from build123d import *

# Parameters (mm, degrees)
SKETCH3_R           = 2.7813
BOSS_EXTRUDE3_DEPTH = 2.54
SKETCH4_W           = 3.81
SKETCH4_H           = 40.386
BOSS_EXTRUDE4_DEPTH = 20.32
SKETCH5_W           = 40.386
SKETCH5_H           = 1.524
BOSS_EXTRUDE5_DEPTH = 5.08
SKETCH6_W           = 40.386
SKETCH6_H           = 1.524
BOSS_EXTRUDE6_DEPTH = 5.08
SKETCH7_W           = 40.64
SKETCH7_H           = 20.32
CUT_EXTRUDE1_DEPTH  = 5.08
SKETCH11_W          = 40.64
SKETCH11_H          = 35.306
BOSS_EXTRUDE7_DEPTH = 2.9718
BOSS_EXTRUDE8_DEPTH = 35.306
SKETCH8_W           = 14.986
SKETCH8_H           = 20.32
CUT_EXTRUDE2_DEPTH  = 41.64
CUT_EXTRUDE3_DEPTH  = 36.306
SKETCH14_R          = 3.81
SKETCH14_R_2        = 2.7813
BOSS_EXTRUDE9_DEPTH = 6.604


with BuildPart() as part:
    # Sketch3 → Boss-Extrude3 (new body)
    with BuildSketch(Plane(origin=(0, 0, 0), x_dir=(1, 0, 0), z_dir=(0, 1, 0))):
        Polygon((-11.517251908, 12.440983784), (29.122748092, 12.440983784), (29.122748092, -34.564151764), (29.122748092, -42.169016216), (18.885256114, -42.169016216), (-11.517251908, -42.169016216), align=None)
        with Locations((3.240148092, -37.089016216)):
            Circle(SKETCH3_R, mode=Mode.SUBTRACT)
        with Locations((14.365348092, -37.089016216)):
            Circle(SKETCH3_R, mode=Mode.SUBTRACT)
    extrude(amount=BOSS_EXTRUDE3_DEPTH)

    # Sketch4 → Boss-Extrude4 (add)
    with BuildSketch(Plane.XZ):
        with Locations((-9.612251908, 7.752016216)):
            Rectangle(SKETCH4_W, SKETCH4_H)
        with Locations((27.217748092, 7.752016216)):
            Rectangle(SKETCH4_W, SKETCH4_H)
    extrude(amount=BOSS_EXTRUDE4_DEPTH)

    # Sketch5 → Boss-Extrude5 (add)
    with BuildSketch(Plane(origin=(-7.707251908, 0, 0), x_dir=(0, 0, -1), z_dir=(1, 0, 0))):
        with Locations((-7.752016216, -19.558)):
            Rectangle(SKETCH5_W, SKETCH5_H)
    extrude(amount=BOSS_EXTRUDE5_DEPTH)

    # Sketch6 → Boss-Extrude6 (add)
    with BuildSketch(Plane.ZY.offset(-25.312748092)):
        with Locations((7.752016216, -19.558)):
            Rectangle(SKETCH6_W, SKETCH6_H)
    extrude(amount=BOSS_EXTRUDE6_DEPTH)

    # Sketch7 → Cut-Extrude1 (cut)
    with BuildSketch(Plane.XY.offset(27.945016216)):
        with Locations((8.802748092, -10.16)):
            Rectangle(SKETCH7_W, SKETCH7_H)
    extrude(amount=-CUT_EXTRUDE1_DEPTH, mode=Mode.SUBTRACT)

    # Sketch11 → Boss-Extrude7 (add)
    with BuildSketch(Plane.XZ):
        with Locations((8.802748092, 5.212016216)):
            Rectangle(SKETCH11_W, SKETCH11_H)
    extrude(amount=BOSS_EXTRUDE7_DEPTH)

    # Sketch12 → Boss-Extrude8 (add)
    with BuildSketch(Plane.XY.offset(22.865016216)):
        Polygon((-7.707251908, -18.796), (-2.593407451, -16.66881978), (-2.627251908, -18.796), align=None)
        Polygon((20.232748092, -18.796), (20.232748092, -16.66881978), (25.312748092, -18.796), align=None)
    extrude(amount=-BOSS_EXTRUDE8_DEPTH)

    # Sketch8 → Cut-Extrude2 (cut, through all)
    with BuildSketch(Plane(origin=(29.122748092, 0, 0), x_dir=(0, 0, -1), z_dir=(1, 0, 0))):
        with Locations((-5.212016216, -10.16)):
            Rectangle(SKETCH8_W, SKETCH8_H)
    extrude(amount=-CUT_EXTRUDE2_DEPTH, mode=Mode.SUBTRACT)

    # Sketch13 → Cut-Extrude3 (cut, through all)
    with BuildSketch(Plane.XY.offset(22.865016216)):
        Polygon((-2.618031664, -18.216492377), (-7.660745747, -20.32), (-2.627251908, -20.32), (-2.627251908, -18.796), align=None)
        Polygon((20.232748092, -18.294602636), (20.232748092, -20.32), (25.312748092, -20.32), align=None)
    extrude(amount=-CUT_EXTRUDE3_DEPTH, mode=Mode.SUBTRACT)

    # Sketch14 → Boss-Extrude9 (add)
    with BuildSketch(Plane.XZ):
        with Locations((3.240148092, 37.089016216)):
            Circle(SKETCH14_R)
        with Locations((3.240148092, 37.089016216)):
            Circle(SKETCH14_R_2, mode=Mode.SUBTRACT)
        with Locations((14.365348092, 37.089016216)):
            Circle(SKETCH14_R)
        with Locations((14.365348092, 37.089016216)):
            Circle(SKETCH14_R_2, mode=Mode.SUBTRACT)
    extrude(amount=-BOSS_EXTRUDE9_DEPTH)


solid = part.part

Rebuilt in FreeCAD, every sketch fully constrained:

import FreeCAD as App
import Part
import Sketcher
Q = App.Units.Quantity

doc = App.newDocument("Part")
params = doc.addObject("Spreadsheet::Sheet", "Params")
for row, (alias, value) in enumerate([
    ("sketch1_diameter", "0.219 in"),
    ("sketch1_width", "1.6 in"),
    ("sketch1_height", "2.15 in"),
    ("pad1_length", "0.1 in"),
    ("sketch2_width", "0.15 in"),
    ("sketch2_height", "1.59 in"),
    ("pad2_length", "0.8 in"),
    ("sketch3_width", "0.06 in"),
    ("sketch3_height", "1.59 in"),
    ("pad3_length", "0.2 in"),
    ("sketch4_width", "0.06 in"),
    ("sketch4_height", "1.59 in"),
    ("pad4_length", "0.2 in"),
    ("sketch5_width", "1.6 in"),
    ("sketch5_height", "0.8 in"),
    ("pocket1_length", "0.2 in"),
    ("sketch6_width", "1.6 in"),
    ("sketch6_height", "1.39 in"),
    ("pad5_length", "0.117 in"),
    ("sketch7_width", "0.2 in"),
    ("pad6_length", "1.39 in"),
    ("sketch8_width", "0.8 in"),
    ("sketch8_height", "0.59 in"),
    ("sketch9_width", "0.2 in"),
    ("sketch9_height", "0.06 in"),
    ("sketch10_diameter", "0.3 in"),
    ("sketch10_diameter2", "0.219 in"),
    ("pad7_length", "0.26 in"),
], start=1):
    params.set(f"A{row}", alias)
    params.set(f"B{row}", "=" + value)
    params.setAlias(f"B{row}", alias)

body = doc.addObject("PartDesign::Body", "Body")

sketch1 = body.newObject("Sketcher::SketchObject", "Sketch")
sketch1.AttachmentSupport = (doc.getObject("XZ_Plane"), [""])
sketch1.MapMode = "FlatFace"
sketch1.addGeometry([
    Part.LineSegment(App.Vector(29.1, -12.4, 0), App.Vector(-11.5, -12.4, 0)),
    Part.LineSegment(App.Vector(-11.5, -12.4, 0), App.Vector(-11.5, 42.2, 0)),
    Part.LineSegment(App.Vector(-11.5, 42.2, 0), App.Vector(29.1, 42.2, 0)),
    Part.LineSegment(App.Vector(29.1, 42.2, 0), App.Vector(29.1, -12.4, 0)),
    Part.Circle(App.Vector(14.4, 37.1, 0), App.Vector(0, 0, 1), 2.8),
    Part.Circle(App.Vector(3.2, 37.1, 0), App.Vector(0, 0, 1), 2.8),
], False)
sketch1.addConstraint([
    Sketcher.Constraint("Coincident", 0, 2, 1, 1),
    Sketcher.Constraint("Coincident", 1, 2, 2, 1),
    Sketcher.Constraint("Coincident", 2, 2, 3, 1),
    Sketcher.Constraint("Coincident", 3, 2, 0, 1),
    Sketcher.Constraint("Horizontal", 0),
    Sketcher.Constraint("Vertical", 1),
    Sketcher.Constraint("Horizontal", 2),
    Sketcher.Constraint("Vertical", 3),
    Sketcher.Constraint("Equal", 4, 5),
    Sketcher.Constraint("Horizontal", 4, 3, 5, 3),
    Sketcher.Constraint("Diameter", 4, Q("0.219 in")),
    Sketcher.Constraint("DistanceX", 0, 2, 0, 1, Q("1.6 in")),
    Sketcher.Constraint("DistanceY", 1, 1, 1, 2, Q("2.15 in")),
    Sketcher.Constraint("DistanceY", 5, 3, 1, 2, Q("0.2 in")),
    Sketcher.Constraint("DistanceX", 5, 3, 4, 3, Q("0.438 in")),
    Sketcher.Constraint("DistanceX", 0, 2, 5, 3, Q("0.581 in")),
    Sketcher.Constraint("DistanceX", -1, 1, 4, 3, Q("14.365348 mm")),
    Sketcher.Constraint("DistanceY", -1, 1, 4, 3, Q("37.089016 mm")),
])
sketch1.setExpression("Constraints[10]", "Params.sketch1_diameter")
sketch1.setExpression("Constraints[11]", "Params.sketch1_width")
sketch1.setExpression("Constraints[12]", "Params.sketch1_height")
pad1 = body.newObject("PartDesign::Pad", "Pad")
pad1.Profile = sketch1
pad1.setExpression("Length", "Params.pad1_length")
pad1.Reversed = True

sketch2 = body.newObject("Sketcher::SketchObject", "Sketch001")
sketch2.AttachmentSupport = (doc.getObject("XZ_Plane"), [""])
sketch2.MapMode = "FlatFace"
sketch2.addGeometry([
    Part.LineSegment(App.Vector(-11.5, 27.9, 0), App.Vector(-11.5, -12.4, 0)),
    Part.LineSegment(App.Vector(-11.5, -12.4, 0), App.Vector(-7.7, -12.4, 0)),
    Part.LineSegment(App.Vector(-7.7, -12.4, 0), App.Vector(-7.7, 27.9, 0)),
    Part.LineSegment(App.Vector(-7.7, 27.9, 0), App.Vector(-11.5, 27.9, 0)),
    Part.LineSegment(App.Vector(25.3, 27.9, 0), App.Vector(25.3, -12.4, 0)),
    Part.LineSegment(App.Vector(25.3, -12.4, 0), App.Vector(29.1, -12.4, 0)),
    Part.LineSegment(App.Vector(29.1, -12.4, 0), App.Vector(29.1, 27.9, 0)),
    Part.LineSegment(App.Vector(29.1, 27.9, 0), App.Vector(25.3, 27.9, 0)),
], False)
sketch2.addConstraint([
    Sketcher.Constraint("Coincident", 0, 2, 1, 1),
    Sketcher.Constraint("Coincident", 1, 2, 2, 1),
    Sketcher.Constraint("Coincident", 2, 2, 3, 1),
    Sketcher.Constraint("Coincident", 3, 2, 0, 1),
    Sketcher.Constraint("Coincident", 4, 2, 5, 1),
    Sketcher.Constraint("Coincident", 5, 2, 6, 1),
    Sketcher.Constraint("Coincident", 6, 2, 7, 1),
    Sketcher.Constraint("Coincident", 7, 2, 4, 1),
    Sketcher.Constraint("Vertical", 0),
    Sketcher.Constraint("Horizontal", 1),
    Sketcher.Constraint("Vertical", 2),
    Sketcher.Constraint("Horizontal", 3),
    Sketcher.Constraint("Vertical", 4),
    Sketcher.Constraint("Horizontal", 5),
    Sketcher.Constraint("Vertical", 6),
    Sketcher.Constraint("Horizontal", 7),
    Sketcher.Constraint("Horizontal", 1, 2, 4, 2),
    Sketcher.Constraint("Horizontal", 3, 2, 6, 2),
    Sketcher.Constraint("Equal", 3, 5),
    Sketcher.Constraint("DistanceX", 1, 1, 1, 2, Q("0.15 in")),
    Sketcher.Constraint("DistanceY", 0, 2, 0, 1, Q("1.59 in")),
    Sketcher.Constraint("DistanceX", 1, 2, 4, 2, Q("1.3 in")),
    Sketcher.Constraint("DistanceX", 0, 2, -1, 1, Q("11.517252 mm")),
    Sketcher.Constraint("DistanceY", 0, 2, -1, 1, Q("12.440984 mm")),
])
sketch2.setExpression("Constraints[19]", "Params.sketch2_width")
sketch2.setExpression("Constraints[20]", "Params.sketch2_height")
pad2 = body.newObject("PartDesign::Pad", "Pad001")
pad2.Profile = sketch2
pad2.setExpression("Length", "Params.pad2_length")

sketch3 = body.newObject("Sketcher::SketchObject", "Sketch002")
sketch3.AttachmentSupport = (doc.getObject("YZ_Plane"), [""])
sketch3.MapMode = "FlatFace"
sketch3.AttachmentOffset = App.Placement(App.Vector(0, 0, -7.707252), App.Rotation())
sketch3.addGeometry([
    Part.LineSegment(App.Vector(-18.8, 27.9, 0), App.Vector(-20.3, 27.9, 0)),
    Part.LineSegment(App.Vector(-20.3, 27.9, 0), App.Vector(-20.3, -12.4, 0)),
    Part.LineSegment(App.Vector(-20.3, -12.4, 0), App.Vector(-18.8, -12.4, 0)),
    Part.LineSegment(App.Vector(-18.8, -12.4, 0), App.Vector(-18.8, 27.9, 0)),
], False)
sketch3.addConstraint([
    Sketcher.Constraint("Coincident", 0, 2, 1, 1),
    Sketcher.Constraint("Coincident", 1, 2, 2, 1),
    Sketcher.Constraint("Coincident", 2, 2, 3, 1),
    Sketcher.Constraint("Coincident", 3, 2, 0, 1),
    Sketcher.Constraint("Horizontal", 0),
    Sketcher.Constraint("Vertical", 1),
    Sketcher.Constraint("Horizontal", 2),
    Sketcher.Constraint("Vertical", 3),
    Sketcher.Constraint("DistanceX", 0, 2, 0, 1, Q("0.06 in")),
    Sketcher.Constraint("DistanceY", 1, 2, 1, 1, Q("1.59 in")),
    Sketcher.Constraint("DistanceX", 0, 2, -1, 1, Q("0.8 in")),
    Sketcher.Constraint("DistanceY", -1, 1, 0, 2, Q("27.945016 mm")),
])
sketch3.setExpression("Constraints[8]", "Params.sketch3_width")
sketch3.setExpression("Constraints[9]", "Params.sketch3_height")
pad3 = body.newObject("PartDesign::Pad", "Pad002")
pad3.Profile = sketch3
pad3.setExpression("Length", "Params.pad3_length")

sketch4 = body.newObject("Sketcher::SketchObject", "Sketch003")
sketch4.AttachmentSupport = (doc.getObject("YZ_Plane"), [""])
sketch4.MapMode = "FlatFace"
sketch4.AttachmentOffset = App.Placement(App.Vector(0, 0, 25.312748), App.Rotation())
sketch4.addGeometry([
    Part.LineSegment(App.Vector(-18.8, -12.4, 0), App.Vector(-20.3, -12.4, 0)),
    Part.LineSegment(App.Vector(-20.3, -12.4, 0), App.Vector(-20.3, 27.9, 0)),
    Part.LineSegment(App.Vector(-20.3, 27.9, 0), App.Vector(-18.8, 27.9, 0)),
    Part.LineSegment(App.Vector(-18.8, 27.9, 0), App.Vector(-18.8, -12.4, 0)),
], False)
sketch4.addConstraint([
    Sketcher.Constraint("Coincident", 0, 2, 1, 1),
    Sketcher.Constraint("Coincident", 1, 2, 2, 1),
    Sketcher.Constraint("Coincident", 2, 2, 3, 1),
    Sketcher.Constraint("Coincident", 3, 2, 0, 1),
    Sketcher.Constraint("Horizontal", 0),
    Sketcher.Constraint("Vertical", 1),
    Sketcher.Constraint("Horizontal", 2),
    Sketcher.Constraint("Vertical", 3),
    Sketcher.Constraint("DistanceX", 0, 2, 0, 1, Q("0.06 in")),
    Sketcher.Constraint("DistanceY", 1, 1, 1, 2, Q("1.59 in")),
    Sketcher.Constraint("DistanceX", 0, 2, -1, 1, Q("0.8 in")),
    Sketcher.Constraint("DistanceY", 0, 2, -1, 1, Q("12.440984 mm")),
])
sketch4.setExpression("Constraints[8]", "Params.sketch4_width")
sketch4.setExpression("Constraints[9]", "Params.sketch4_height")
pad4 = body.newObject("PartDesign::Pad", "Pad003")
pad4.Profile = sketch4
pad4.setExpression("Length", "Params.pad4_length")
pad4.Reversed = True

sketch5 = body.newObject("Sketcher::SketchObject", "Sketch004")
sketch5.AttachmentSupport = (doc.getObject("XY_Plane"), [""])
sketch5.MapMode = "FlatFace"
sketch5.AttachmentOffset = App.Placement(App.Vector(0, 0, 27.945016), App.Rotation())
sketch5.addGeometry([
    Part.LineSegment(App.Vector(-12, 0, 0), App.Vector(-12, -20, 0)),
    Part.LineSegment(App.Vector(-12, -20, 0), App.Vector(29, -20, 0)),
    Part.LineSegment(App.Vector(29, -20, 0), App.Vector(29, 0, 0)),
    Part.LineSegment(App.Vector(29, 0, 0), App.Vector(-12, 0, 0)),
], False)
sketch5.addConstraint([
    Sketcher.Constraint("Coincident", 0, 2, 1, 1),
    Sketcher.Constraint("Coincident", 1, 2, 2, 1),
    Sketcher.Constraint("Coincident", 2, 2, 3, 1),
    Sketcher.Constraint("Coincident", 3, 2, 0, 1),
    Sketcher.Constraint("Vertical", 0),
    Sketcher.Constraint("Horizontal", 1),
    Sketcher.Constraint("Vertical", 2),
    Sketcher.Constraint("Horizontal", 3),
    Sketcher.Constraint("PointOnObject", 2, 2, -1),
    Sketcher.Constraint("DistanceX", 1, 1, 1, 2, Q("1.6 in")),
    Sketcher.Constraint("DistanceY", 0, 2, 0, 1, Q("0.8 in")),
    Sketcher.Constraint("DistanceX", 0, 2, -1, 1, Q("11.517252 mm")),
])
sketch5.setExpression("Constraints[9]", "Params.sketch5_width")
sketch5.setExpression("Constraints[10]", "Params.sketch5_height")
pocket1 = body.newObject("PartDesign::Pocket", "Pocket")
pocket1.Profile = sketch5
pocket1.setExpression("Length", "Params.pocket1_length")

sketch6 = body.newObject("Sketcher::SketchObject", "Sketch005")
sketch6.AttachmentSupport = (doc.getObject("XZ_Plane"), [""])
sketch6.MapMode = "FlatFace"
sketch6.addGeometry([
    Part.LineSegment(App.Vector(-12, 23, 0), App.Vector(-12, -12, 0)),
    Part.LineSegment(App.Vector(-12, -12, 0), App.Vector(29, -12, 0)),
    Part.LineSegment(App.Vector(29, -12, 0), App.Vector(29, 23, 0)),
    Part.LineSegment(App.Vector(29, 23, 0), App.Vector(-12, 23, 0)),
], False)
sketch6.addConstraint([
    Sketcher.Constraint("Coincident", 0, 2, 1, 1),
    Sketcher.Constraint("Coincident", 1, 2, 2, 1),
    Sketcher.Constraint("Coincident", 2, 2, 3, 1),
    Sketcher.Constraint("Coincident", 3, 2, 0, 1),
    Sketcher.Constraint("Vertical", 0),
    Sketcher.Constraint("Horizontal", 1),
    Sketcher.Constraint("Vertical", 2),
    Sketcher.Constraint("Horizontal", 3),
    Sketcher.Constraint("DistanceX", 1, 1, 1, 2, Q("1.6 in")),
    Sketcher.Constraint("DistanceY", 0, 2, 0, 1, Q("1.39 in")),
    Sketcher.Constraint("DistanceX", 0, 2, -1, 1, Q("11.517252 mm")),
    Sketcher.Constraint("DistanceY", 0, 2, -1, 1, Q("12.440984 mm")),
])
sketch6.setExpression("Constraints[8]", "Params.sketch6_width")
sketch6.setExpression("Constraints[9]", "Params.sketch6_height")
pad5 = body.newObject("PartDesign::Pad", "Pad004")
pad5.Profile = sketch6
pad5.setExpression("Length", "Params.pad5_length")

sketch7 = body.newObject("Sketcher::SketchObject", "Sketch006")
sketch7.AttachmentSupport = (doc.getObject("XY_Plane"), [""])
sketch7.MapMode = "FlatFace"
sketch7.AttachmentOffset = App.Placement(App.Vector(0, 0, 22.865016), App.Rotation())
sketch7.addGeometry([
    Part.LineSegment(App.Vector(-2.6, -16.7, 0), App.Vector(-7.7, -18.8, 0)),
    Part.LineSegment(App.Vector(-7.7, -18.8, 0), App.Vector(-2.6, -18.8, 0)),
    Part.LineSegment(App.Vector(-2.6, -18.8, 0), App.Vector(-2.6, -16.7, 0)),
    Part.LineSegment(App.Vector(20.2, -16.7, 0), App.Vector(20.2, -18.8, 0)),
    Part.LineSegment(App.Vector(20.2, -18.8, 0), App.Vector(25.3, -18.8, 0)),
    Part.LineSegment(App.Vector(25.3, -18.8, 0), App.Vector(20.2, -16.7, 0)),
], False)
sketch7.addConstraint([
    Sketcher.Constraint("Coincident", 0, 2, 1, 1),
    Sketcher.Constraint("Coincident", 1, 2, 2, 1),
    Sketcher.Constraint("Coincident", 2, 2, 0, 1),
    Sketcher.Constraint("Coincident", 3, 2, 4, 1),
    Sketcher.Constraint("Coincident", 4, 2, 5, 1),
    Sketcher.Constraint("Coincident", 5, 2, 3, 1),
    Sketcher.Constraint("Horizontal", 1),
    Sketcher.Constraint("Vertical", 3),
    Sketcher.Constraint("Horizontal", 4),
    Sketcher.Constraint("Horizontal", 1, 2, 3, 2),
    Sketcher.Constraint("Horizontal", 2, 2, 5, 2),
    Sketcher.Constraint("Equal", 1, 4),
    Sketcher.Constraint("DistanceX", 1, 1, 1, 2, Q("0.2 in")),
    Sketcher.Constraint("DistanceX", 1, 2, 3, 2, Q("0.9 in")),
    Sketcher.Constraint("DistanceY", 0, 2, -1, 1, Q("0.74 in")),
    Sketcher.Constraint("DistanceY", 3, 2, 3, 1, Q("2.12718 mm")),
    Sketcher.Constraint("Distance", 0, Q("5.538619 mm")),
    Sketcher.Constraint("DistanceX", 0, 2, -1, 1, Q("7.707252 mm")),
])
sketch7.setExpression("Constraints[12]", "Params.sketch7_width")
pad6 = body.newObject("PartDesign::Pad", "Pad005")
pad6.Profile = sketch7
pad6.setExpression("Length", "Params.pad6_length")
pad6.Reversed = True

sketch8 = body.newObject("Sketcher::SketchObject", "Sketch007")
sketch8.AttachmentSupport = (doc.getObject("YZ_Plane"), [""])
sketch8.MapMode = "FlatFace"
sketch8.AttachmentOffset = App.Placement(App.Vector(0, 0, 29.122748), App.Rotation())
sketch8.addGeometry([
    Part.LineSegment(App.Vector(0, 13, 0), App.Vector(-20, 13, 0)),
    Part.LineSegment(App.Vector(-20, 13, 0), App.Vector(-20, -2, 0)),
    Part.LineSegment(App.Vector(-20, -2, 0), App.Vector(0, -2, 0)),
    Part.LineSegment(App.Vector(0, -2, 0), App.Vector(0, 13, 0)),
], False)
sketch8.addConstraint([
    Sketcher.Constraint("Coincident", 0, 2, 1, 1),
    Sketcher.Constraint("Coincident", 1, 2, 2, 1),
    Sketcher.Constraint("Coincident", 2, 2, 3, 1),
    Sketcher.Constraint("Coincident", 3, 2, 0, 1),
    Sketcher.Constraint("Horizontal", 0),
    Sketcher.Constraint("Vertical", 1),
    Sketcher.Constraint("Horizontal", 2),
    Sketcher.Constraint("Vertical", 3),
    Sketcher.Constraint("PointOnObject", 2, 2, -2),
    Sketcher.Constraint("DistanceX", 0, 2, 0, 1, Q("0.8 in")),
    Sketcher.Constraint("DistanceY", 1, 2, 1, 1, Q("0.59 in")),
    Sketcher.Constraint("DistanceY", -1, 1, 0, 2, Q("12.705016 mm")),
])
sketch8.setExpression("Constraints[9]", "Params.sketch8_width")
sketch8.setExpression("Constraints[10]", "Params.sketch8_height")
pocket2 = body.newObject("PartDesign::Pocket", "Pocket001")
pocket2.Profile = sketch8
pocket2.Type = "ThroughAll"

sketch9 = body.newObject("Sketcher::SketchObject", "Sketch008")
sketch9.AttachmentSupport = (doc.getObject("XY_Plane"), [""])
sketch9.MapMode = "FlatFace"
sketch9.AttachmentOffset = App.Placement(App.Vector(0, 0, 22.865016), App.Rotation())
sketch9.addGeometry([
    Part.LineSegment(App.Vector(-2.6, -18.2, 0), App.Vector(-7.7, -20.3, 0)),
    Part.LineSegment(App.Vector(-7.7, -20.3, 0), App.Vector(-2.6, -20.3, 0)),
    Part.LineSegment(App.Vector(-2.6, -20.3, 0), App.Vector(-2.6, -18.8, 0)),
    Part.LineSegment(App.Vector(-2.6, -18.8, 0), App.Vector(-2.6, -18.2, 0)),
    Part.LineSegment(App.Vector(20.2, -18.3, 0), App.Vector(20.2, -20.3, 0)),
    Part.LineSegment(App.Vector(20.2, -20.3, 0), App.Vector(25.3, -20.3, 0)),
    Part.LineSegment(App.Vector(25.3, -20.3, 0), App.Vector(20.2, -18.3, 0)),
], False)
sketch9.addConstraint([
    Sketcher.Constraint("Coincident", 0, 2, 1, 1),
    Sketcher.Constraint("Coincident", 1, 2, 2, 1),
    Sketcher.Constraint("Coincident", 2, 2, 3, 1),
    Sketcher.Constraint("Coincident", 3, 2, 0, 1),
    Sketcher.Constraint("Coincident", 4, 2, 5, 1),
    Sketcher.Constraint("Coincident", 5, 2, 6, 1),
    Sketcher.Constraint("Coincident", 6, 2, 4, 1),
    Sketcher.Constraint("Horizontal", 1),
    Sketcher.Constraint("Vertical", 2),
    Sketcher.Constraint("Vertical", 4),
    Sketcher.Constraint("Horizontal", 5),
    Sketcher.Constraint("Horizontal", 1, 2, 4, 2),
    Sketcher.Constraint("DistanceX", 5, 1, 5, 2, Q("0.2 in")),
    Sketcher.Constraint("DistanceY", 2, 1, 2, 2, Q("0.06 in")),
    Sketcher.Constraint("DistanceY", 0, 2, -1, 1, Q("0.8 in")),
    Sketcher.Constraint("DistanceX", 1, 2, 4, 2, Q("0.9 in")),
    Sketcher.Constraint("Distance", 3, Q("0.579581 mm")),
    Sketcher.Constraint("Distance", 6, Q("5.468879 mm")),
    Sketcher.Constraint("DistanceX", 1, 1, 1, 2, Q("5.033494 mm")),
    Sketcher.Constraint("DistanceX", 1, 2, -1, 1, Q("2.627252 mm")),
    Sketcher.Constraint("DistanceX", 3, 2, -1, 1, Q("2.618032 mm")),
])
sketch9.setExpression("Constraints[12]", "Params.sketch9_width")
sketch9.setExpression("Constraints[13]", "Params.sketch9_height")
pocket3 = body.newObject("PartDesign::Pocket", "Pocket002")
pocket3.Profile = sketch9
pocket3.Type = "ThroughAll"

sketch10 = body.newObject("Sketcher::SketchObject", "Sketch009")
sketch10.AttachmentSupport = (doc.getObject("XZ_Plane"), [""])
sketch10.MapMode = "FlatFace"
sketch10.addGeometry([
    Part.Circle(App.Vector(3.2, 37.1, 0), App.Vector(0, 0, 1), 3.8),
    Part.Circle(App.Vector(3.2, 37.1, 0), App.Vector(0, 0, 1), 2.8),
    Part.Circle(App.Vector(14.4, 37.1, 0), App.Vector(0, 0, 1), 3.8),
    Part.Circle(App.Vector(14.4, 37.1, 0), App.Vector(0, 0, 1), 2.8),
], False)
sketch10.addConstraint([
    Sketcher.Constraint("Coincident", 1, 3, 0, 3),
    Sketcher.Constraint("Coincident", 3, 3, 2, 3),
    Sketcher.Constraint("Equal", 0, 2),
    Sketcher.Constraint("Equal", 1, 3),
    Sketcher.Constraint("Horizontal", 1, 3, 2, 3),
    Sketcher.Constraint("Diameter", 0, Q("0.3 in")),
    Sketcher.Constraint("Diameter", 1, Q("0.219 in")),
    Sketcher.Constraint("DistanceX", 0, 3, 2, 3, Q("0.438 in")),
    Sketcher.Constraint("DistanceX", -1, 1, 0, 3, Q("3.240148 mm")),
    Sketcher.Constraint("DistanceY", -1, 1, 0, 3, Q("37.089016 mm")),
])
sketch10.setExpression("Constraints[5]", "Params.sketch10_diameter")
sketch10.setExpression("Constraints[6]", "Params.sketch10_diameter2")
pad7 = body.newObject("PartDesign::Pad", "Pad006")
pad7.Profile = sketch10
pad7.setExpression("Length", "Params.pad7_length")
pad7.Reversed = True

doc.recompute()
